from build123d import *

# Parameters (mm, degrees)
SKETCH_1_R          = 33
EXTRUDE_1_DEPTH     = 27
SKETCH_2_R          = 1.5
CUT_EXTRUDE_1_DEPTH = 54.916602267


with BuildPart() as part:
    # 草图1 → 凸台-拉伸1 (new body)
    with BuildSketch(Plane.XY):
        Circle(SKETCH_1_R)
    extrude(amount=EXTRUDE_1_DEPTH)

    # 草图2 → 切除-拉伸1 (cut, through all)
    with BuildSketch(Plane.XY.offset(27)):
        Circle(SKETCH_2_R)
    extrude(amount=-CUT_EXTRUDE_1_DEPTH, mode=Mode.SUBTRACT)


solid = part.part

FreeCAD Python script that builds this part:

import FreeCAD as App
import Part
import Sketcher
from FreeCAD import Vector
Q = App.Units.Quantity

doc = App.newDocument("Part")
body = doc.addObject("PartDesign::Body", "Body")

# Sketch on XY plane
sketch1 = doc.addObject("Sketcher::SketchObject", "Sketch")
body.addObject(sketch1)
sketch1.AttachmentSupport = (doc.XY_Plane, [""])
sketch1.MapMode = "FlatFace"
sketch1.addGeometry(Part.Circle(Vector(0, 0, 0), Vector(0, 0, 1), 33), False)
sketch1.addConstraint(Sketcher.Constraint("Coincident", 0, 3, -1, 1))
sketch1.addConstraint(Sketcher.Constraint("Diameter", 0, Q("66 mm")))
pad1 = doc.addObject("PartDesign::Pad", "Pad")
body.addObject(pad1)
pad1.Profile = sketch1
pad1.Length = 27

# Sketch on XY plane
sketch2 = doc.addObject("Sketcher::SketchObject", "Sketch001")
body.addObject(sketch2)
sketch2.AttachmentSupport = (doc.XY_Plane, [""])
sketch2.MapMode = "FlatFace"
sketch2.AttachmentOffset = App.Placement(Vector(0, 0, 27), App.Rotation())
sketch2.addGeometry(Part.Circle(Vector(0, 0, 0), Vector(0, 0, 1), 1.5), False)
sketch2.addConstraint(Sketcher.Constraint("Coincident", 0, 3, -1, 1))
sketch2.addConstraint(Sketcher.Constraint("Diameter", 0, Q("3 mm")))
pocket1 = doc.addObject("PartDesign::Pocket", "Pocket")
body.addObject(pocket1)
pocket1.Profile = sketch2
pocket1.Type = "ThroughAll"

doc.recompute()
